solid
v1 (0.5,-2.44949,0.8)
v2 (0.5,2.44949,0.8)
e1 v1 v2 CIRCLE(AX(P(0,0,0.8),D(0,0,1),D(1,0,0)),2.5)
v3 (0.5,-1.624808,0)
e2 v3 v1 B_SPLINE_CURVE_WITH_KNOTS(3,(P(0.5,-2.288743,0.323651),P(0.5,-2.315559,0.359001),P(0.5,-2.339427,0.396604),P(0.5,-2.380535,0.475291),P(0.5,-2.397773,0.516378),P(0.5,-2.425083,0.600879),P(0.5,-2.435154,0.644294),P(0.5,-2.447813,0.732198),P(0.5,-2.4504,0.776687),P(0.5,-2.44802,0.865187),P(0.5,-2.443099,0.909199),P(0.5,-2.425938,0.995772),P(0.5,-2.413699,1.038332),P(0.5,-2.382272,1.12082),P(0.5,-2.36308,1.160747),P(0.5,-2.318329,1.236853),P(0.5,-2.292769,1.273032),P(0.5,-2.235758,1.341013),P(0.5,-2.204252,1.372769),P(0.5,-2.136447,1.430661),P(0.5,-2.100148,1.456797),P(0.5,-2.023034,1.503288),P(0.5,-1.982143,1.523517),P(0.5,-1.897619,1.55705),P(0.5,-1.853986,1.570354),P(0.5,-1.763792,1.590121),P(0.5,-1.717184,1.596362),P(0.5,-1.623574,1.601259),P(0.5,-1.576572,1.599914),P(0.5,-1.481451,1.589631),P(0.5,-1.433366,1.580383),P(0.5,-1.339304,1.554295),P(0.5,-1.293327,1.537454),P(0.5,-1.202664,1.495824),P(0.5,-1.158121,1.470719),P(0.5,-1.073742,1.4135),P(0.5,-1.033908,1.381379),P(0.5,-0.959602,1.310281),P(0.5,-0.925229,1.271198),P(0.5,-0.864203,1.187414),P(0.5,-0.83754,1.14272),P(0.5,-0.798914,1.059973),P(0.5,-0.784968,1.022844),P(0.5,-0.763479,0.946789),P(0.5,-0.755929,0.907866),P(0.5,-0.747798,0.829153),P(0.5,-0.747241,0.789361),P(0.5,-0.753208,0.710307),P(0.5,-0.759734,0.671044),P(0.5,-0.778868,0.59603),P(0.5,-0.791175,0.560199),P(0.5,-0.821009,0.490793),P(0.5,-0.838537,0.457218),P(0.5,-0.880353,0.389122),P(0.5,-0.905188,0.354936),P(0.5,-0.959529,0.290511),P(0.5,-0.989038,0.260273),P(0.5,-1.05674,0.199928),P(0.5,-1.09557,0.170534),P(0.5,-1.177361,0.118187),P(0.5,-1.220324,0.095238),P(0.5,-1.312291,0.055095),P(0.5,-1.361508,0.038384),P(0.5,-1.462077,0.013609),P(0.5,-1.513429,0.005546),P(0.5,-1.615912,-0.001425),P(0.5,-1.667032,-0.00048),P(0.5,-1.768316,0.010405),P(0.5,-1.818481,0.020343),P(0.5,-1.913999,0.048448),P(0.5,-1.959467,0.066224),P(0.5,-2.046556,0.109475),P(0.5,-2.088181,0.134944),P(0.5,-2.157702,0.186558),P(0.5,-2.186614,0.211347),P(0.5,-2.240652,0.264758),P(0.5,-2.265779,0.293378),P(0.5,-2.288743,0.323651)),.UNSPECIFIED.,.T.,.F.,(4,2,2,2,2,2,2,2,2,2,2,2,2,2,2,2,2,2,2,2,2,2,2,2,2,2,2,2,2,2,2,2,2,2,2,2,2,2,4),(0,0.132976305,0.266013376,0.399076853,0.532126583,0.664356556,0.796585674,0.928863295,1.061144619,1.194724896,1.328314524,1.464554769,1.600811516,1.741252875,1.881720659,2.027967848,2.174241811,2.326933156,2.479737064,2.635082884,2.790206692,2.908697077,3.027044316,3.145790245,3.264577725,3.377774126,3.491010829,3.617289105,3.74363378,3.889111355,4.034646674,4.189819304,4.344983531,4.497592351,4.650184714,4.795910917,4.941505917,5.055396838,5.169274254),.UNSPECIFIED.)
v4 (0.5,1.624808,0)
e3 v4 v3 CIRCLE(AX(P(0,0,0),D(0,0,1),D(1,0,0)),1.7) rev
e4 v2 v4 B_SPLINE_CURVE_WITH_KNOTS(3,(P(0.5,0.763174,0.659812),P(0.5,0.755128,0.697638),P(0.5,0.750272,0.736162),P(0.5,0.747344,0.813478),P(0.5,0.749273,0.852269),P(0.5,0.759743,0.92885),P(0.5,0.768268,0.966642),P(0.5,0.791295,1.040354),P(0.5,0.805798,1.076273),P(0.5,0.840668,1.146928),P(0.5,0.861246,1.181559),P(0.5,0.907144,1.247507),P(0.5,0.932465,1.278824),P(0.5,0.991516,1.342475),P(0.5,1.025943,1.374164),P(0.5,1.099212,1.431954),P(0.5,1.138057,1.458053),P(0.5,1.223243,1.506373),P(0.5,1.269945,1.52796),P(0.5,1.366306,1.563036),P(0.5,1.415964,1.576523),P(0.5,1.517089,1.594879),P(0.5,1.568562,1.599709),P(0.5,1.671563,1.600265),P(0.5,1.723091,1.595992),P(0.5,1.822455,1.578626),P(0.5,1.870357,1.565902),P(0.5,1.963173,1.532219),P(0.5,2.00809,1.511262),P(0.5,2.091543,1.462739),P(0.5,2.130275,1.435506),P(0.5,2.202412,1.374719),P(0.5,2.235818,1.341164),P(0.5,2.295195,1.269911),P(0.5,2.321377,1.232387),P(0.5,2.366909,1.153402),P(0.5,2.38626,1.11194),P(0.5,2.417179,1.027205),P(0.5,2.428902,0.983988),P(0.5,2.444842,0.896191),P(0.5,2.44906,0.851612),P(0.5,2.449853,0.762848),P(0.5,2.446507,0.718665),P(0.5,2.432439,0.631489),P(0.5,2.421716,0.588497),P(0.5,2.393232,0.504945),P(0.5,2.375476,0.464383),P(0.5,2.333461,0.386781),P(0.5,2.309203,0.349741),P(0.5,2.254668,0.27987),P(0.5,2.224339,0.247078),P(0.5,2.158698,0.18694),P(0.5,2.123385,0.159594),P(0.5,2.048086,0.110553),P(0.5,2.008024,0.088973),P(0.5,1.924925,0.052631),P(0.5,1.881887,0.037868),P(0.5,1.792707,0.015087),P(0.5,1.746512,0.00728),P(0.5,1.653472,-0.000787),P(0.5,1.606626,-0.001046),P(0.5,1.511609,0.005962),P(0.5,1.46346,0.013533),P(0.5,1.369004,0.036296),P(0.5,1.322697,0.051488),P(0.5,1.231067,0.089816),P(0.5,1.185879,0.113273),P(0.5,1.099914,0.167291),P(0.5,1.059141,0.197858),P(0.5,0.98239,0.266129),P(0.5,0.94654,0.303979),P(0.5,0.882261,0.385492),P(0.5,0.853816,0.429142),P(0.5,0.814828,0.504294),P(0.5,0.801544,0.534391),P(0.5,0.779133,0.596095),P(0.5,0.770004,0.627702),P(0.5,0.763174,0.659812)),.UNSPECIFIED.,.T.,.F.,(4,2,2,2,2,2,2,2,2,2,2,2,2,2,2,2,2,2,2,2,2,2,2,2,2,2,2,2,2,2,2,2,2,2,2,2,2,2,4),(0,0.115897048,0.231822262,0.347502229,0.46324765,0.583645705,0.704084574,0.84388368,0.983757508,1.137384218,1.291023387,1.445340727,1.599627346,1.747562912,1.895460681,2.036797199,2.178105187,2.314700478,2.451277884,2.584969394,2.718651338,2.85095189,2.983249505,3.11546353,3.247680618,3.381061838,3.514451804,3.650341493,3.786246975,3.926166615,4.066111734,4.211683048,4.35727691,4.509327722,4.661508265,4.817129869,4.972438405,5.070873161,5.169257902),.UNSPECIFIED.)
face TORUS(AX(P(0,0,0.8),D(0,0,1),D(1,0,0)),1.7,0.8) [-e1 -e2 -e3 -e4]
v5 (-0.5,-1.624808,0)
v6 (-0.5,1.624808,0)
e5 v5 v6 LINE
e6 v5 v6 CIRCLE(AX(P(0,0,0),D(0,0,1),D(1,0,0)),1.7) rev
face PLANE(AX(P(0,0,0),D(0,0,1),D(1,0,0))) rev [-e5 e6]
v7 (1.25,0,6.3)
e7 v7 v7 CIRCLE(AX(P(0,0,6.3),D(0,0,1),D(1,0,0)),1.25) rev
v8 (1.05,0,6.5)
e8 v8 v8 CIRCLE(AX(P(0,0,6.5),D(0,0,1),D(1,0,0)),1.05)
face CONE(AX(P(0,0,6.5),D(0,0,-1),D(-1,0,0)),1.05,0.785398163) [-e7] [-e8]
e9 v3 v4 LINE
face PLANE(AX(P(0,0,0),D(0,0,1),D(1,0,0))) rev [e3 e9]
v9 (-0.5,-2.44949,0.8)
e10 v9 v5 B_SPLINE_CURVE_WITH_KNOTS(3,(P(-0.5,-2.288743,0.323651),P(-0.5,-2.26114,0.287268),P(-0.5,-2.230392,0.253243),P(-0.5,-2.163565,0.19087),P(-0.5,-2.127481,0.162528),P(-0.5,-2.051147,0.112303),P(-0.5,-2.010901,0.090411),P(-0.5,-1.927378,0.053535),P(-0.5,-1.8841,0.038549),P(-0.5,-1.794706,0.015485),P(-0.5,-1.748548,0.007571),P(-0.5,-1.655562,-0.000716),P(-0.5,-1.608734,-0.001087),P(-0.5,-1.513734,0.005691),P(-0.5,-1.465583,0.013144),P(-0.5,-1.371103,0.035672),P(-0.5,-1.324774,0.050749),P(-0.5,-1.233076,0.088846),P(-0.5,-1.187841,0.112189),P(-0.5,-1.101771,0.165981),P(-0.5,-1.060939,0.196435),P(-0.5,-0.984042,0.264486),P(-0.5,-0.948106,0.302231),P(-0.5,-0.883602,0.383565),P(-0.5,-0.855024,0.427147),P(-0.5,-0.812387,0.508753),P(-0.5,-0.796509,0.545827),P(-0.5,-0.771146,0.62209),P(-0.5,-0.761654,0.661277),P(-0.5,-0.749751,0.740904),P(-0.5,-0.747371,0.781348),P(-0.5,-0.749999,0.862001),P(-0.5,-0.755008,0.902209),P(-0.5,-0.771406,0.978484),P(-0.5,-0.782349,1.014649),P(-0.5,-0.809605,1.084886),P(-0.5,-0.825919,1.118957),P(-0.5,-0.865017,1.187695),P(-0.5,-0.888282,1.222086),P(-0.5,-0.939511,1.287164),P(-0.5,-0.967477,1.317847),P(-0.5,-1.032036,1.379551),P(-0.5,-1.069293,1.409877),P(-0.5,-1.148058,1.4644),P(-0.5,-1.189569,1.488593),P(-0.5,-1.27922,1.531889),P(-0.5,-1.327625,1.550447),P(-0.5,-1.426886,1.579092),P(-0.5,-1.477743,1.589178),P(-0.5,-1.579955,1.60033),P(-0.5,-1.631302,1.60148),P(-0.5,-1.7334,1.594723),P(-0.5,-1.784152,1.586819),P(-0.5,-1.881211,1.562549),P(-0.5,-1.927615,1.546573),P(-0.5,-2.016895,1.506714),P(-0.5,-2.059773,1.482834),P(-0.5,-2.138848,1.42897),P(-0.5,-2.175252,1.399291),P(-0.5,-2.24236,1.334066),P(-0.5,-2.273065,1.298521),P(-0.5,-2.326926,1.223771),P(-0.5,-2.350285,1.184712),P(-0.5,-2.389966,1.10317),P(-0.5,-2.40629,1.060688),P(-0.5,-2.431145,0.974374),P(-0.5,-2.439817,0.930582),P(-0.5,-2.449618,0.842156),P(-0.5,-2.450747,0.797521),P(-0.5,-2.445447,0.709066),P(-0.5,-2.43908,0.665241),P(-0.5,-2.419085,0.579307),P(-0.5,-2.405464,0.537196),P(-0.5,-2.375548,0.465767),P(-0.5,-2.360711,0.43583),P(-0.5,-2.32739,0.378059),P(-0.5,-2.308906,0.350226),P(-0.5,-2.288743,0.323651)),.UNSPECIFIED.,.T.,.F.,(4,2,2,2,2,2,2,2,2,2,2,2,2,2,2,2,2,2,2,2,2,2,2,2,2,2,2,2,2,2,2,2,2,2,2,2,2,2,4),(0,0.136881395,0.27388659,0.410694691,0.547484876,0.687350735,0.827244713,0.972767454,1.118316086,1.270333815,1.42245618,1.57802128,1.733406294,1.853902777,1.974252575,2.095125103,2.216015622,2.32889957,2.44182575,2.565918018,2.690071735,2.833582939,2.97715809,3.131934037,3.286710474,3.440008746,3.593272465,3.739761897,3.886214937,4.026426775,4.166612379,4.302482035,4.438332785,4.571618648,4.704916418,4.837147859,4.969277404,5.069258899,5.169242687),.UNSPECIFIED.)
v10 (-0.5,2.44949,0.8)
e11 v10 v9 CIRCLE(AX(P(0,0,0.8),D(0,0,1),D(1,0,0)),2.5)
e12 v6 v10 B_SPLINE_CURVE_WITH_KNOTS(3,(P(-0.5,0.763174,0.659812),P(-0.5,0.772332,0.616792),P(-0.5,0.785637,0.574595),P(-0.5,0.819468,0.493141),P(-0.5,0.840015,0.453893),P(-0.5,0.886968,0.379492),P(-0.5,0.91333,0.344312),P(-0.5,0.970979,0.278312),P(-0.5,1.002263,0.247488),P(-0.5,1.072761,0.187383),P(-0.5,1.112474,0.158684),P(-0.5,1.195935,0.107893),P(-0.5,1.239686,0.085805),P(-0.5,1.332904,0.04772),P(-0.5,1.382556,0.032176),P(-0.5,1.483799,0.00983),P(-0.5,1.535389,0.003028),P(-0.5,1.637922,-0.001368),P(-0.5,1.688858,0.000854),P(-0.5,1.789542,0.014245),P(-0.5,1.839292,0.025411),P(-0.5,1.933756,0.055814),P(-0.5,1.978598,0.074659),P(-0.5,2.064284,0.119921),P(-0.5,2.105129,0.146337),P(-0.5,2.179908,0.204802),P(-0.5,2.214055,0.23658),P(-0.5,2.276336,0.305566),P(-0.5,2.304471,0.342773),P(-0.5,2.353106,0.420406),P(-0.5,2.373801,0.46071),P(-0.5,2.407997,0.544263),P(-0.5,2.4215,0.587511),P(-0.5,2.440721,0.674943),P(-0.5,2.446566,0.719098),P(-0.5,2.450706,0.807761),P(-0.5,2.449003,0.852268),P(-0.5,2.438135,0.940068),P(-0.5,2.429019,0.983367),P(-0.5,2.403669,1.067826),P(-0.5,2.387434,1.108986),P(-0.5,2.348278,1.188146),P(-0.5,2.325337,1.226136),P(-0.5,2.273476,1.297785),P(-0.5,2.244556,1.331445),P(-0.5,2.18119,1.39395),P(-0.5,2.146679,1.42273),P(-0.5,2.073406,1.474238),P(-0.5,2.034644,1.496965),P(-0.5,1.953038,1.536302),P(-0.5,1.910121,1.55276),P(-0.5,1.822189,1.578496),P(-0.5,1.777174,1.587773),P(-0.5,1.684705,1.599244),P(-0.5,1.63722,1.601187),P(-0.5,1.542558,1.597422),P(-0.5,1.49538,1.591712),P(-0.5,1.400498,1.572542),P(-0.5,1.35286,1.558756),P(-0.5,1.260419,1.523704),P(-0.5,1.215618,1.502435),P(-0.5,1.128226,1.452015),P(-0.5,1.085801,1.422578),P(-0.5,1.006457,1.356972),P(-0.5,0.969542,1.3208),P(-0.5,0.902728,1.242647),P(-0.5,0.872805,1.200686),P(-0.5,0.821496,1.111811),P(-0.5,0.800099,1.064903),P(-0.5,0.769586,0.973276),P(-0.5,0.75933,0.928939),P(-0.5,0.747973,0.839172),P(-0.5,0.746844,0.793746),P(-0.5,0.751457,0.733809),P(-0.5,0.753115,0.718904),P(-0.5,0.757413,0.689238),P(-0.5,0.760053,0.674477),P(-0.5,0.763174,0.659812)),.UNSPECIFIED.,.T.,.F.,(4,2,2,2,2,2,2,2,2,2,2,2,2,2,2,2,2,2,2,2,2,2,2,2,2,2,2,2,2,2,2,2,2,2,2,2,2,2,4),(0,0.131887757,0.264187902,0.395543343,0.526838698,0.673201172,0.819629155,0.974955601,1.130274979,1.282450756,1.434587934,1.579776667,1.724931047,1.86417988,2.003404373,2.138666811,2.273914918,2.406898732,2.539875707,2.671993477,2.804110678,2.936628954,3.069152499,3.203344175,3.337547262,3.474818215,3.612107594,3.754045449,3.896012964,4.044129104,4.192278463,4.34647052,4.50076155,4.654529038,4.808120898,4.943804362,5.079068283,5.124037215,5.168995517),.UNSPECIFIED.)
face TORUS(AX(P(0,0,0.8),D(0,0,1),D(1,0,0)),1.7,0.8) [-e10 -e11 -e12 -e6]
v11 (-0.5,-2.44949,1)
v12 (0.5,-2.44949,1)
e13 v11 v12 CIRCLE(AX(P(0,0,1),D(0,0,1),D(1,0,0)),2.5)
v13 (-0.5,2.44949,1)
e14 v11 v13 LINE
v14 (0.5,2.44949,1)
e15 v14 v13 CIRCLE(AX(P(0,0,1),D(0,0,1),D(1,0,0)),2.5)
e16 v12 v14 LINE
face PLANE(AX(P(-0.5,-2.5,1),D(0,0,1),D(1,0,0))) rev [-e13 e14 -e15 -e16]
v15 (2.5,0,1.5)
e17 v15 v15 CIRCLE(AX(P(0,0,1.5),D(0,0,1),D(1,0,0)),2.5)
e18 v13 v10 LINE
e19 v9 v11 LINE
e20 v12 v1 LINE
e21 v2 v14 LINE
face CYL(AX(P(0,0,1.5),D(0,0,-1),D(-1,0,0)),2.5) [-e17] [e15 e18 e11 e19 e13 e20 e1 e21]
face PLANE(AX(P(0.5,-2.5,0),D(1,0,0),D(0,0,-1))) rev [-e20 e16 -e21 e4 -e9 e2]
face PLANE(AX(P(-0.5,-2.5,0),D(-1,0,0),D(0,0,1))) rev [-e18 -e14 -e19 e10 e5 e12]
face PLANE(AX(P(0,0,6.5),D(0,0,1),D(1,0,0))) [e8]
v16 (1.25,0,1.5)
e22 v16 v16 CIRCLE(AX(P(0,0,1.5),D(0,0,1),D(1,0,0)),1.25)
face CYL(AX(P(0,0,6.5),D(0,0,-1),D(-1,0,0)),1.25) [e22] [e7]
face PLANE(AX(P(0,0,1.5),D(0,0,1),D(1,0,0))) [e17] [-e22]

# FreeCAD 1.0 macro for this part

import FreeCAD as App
import Part
import Sketcher


def edges_at(feature, points):
    """Names of the edges that pass closest to the given points."""
    edges = feature.Shape.Edges
    near = lambda p: min(range(len(edges)), key=lambda i: edges[i].distToShape(Part.Vertex(*p))[0])
    return sorted({f"Edge{near(p) + 1}" for p in points})

doc = App.newDocument("Part")
body = doc.addObject("PartDesign::Body", "Body")

sketch1 = doc.addObject("Sketcher::SketchObject", "Sketch")
body.addObject(sketch1)
sketch1.AttachmentSupport = (doc.XY_Plane, [""])
sketch1.MapMode = "FlatFace"
sketch1.addGeometry(Part.Circle(App.Vector(0, 0, 0), App.Vector(0, 0, 1), 2.5), False)
sketch1.addConstraint([
    Sketcher.Constraint("Coincident", 0, 3, -1, 1),
    Sketcher.Constraint("Diameter", 0, 5.0),
])
pad1 = doc.addObject("PartDesign::Pad", "Pad")
body.addObject(pad1)
pad1.Profile = sketch1
pad1.Length = 1.5
doc.recompute()

fillet = doc.addObject("PartDesign::Fillet", "Fillet")
body.addObject(fillet)
fillet.Base = (pad1, edges_at(pad1, [(-2.5, 0, 0)]))
fillet.Radius = 0.8

sketch2 = doc.addObject("Sketcher::SketchObject", "Sketch001")
body.addObject(sketch2)
sketch2.AttachmentSupport = (doc.XY_Plane, [""])
sketch2.MapMode = "FlatFace"
sketch2.AttachmentOffset = App.Placement(App.Vector(0, 0, 1.5), App.Rotation())
sketch2.addGeometry(Part.Circle(App.Vector(0, 0, 0), App.Vector(0, 0, 1), 1.2), False)
sketch2.addConstraint([
    Sketcher.Constraint("Coincident", 0, 3, -1, 1),
    Sketcher.Constraint("Diameter", 0, 2.5),
])
pad2 = doc.addObject("PartDesign::Pad", "Pad001")
body.addObject(pad2)
pad2.Profile = sketch2
pad2.Length = 5
doc.recompute()

chamfer = doc.addObject("PartDesign::Chamfer", "Chamfer")
body.addObject(chamfer)
chamfer.Base = (pad2, edges_at(pad2, [(-1.25, 0, 6.5)]))
chamfer.Size = 0.2

sketch3 = doc.addObject("Sketcher::SketchObject", "Sketch002")
body.addObject(sketch3)
sketch3.AttachmentSupport = (doc.XZ_Plane, [""])
sketch3.MapMode = "FlatFace"
sketch3.addGeometry([
    Part.LineSegment(App.Vector(-0.5, 0, 0), App.Vector(-0.5, 1, 0)),
    Part.LineSegment(App.Vector(-0.5, 1, 0), App.Vector(0.5, 1, 0)),
    Part.LineSegment(App.Vector(0.5, 1, 0), App.Vector(0.5, 0, 0)),
    Part.LineSegment(App.Vector(0.5, 0, 0), App.Vector(-0.5, 0, 0)),
], False)
sketch3.addConstraint([
    Sketcher.Constraint("Coincident", 0, 2, 1, 1),
    Sketcher.Constraint("Coincident", 1, 2, 2, 1),
    Sketcher.Constraint("Coincident", 2, 2, 3, 1),
    Sketcher.Constraint("Coincident", 3, 2, 0, 1),
    Sketcher.Constraint("Vertical", 0),
    Sketcher.Constraint("Horizontal", 1),
    Sketcher.Constraint("Vertical", 2),
    Sketcher.Constraint("Horizontal", 3),
    Sketcher.Constraint("Symmetric", 2, 2, 3, 2, -1, 1),
    Sketcher.Constraint("Equal", 3, 0),
    Sketcher.Constraint("DistanceX", 1, 1, 1, 2, 1.0),
])
pocket1 = doc.addObject("PartDesign::Pocket", "Pocket")
body.addObject(pocket1)
pocket1.Profile = sketch3
pocket1.Type = "ThroughAll"
pocket1.Midplane = True

doc.recompute()
